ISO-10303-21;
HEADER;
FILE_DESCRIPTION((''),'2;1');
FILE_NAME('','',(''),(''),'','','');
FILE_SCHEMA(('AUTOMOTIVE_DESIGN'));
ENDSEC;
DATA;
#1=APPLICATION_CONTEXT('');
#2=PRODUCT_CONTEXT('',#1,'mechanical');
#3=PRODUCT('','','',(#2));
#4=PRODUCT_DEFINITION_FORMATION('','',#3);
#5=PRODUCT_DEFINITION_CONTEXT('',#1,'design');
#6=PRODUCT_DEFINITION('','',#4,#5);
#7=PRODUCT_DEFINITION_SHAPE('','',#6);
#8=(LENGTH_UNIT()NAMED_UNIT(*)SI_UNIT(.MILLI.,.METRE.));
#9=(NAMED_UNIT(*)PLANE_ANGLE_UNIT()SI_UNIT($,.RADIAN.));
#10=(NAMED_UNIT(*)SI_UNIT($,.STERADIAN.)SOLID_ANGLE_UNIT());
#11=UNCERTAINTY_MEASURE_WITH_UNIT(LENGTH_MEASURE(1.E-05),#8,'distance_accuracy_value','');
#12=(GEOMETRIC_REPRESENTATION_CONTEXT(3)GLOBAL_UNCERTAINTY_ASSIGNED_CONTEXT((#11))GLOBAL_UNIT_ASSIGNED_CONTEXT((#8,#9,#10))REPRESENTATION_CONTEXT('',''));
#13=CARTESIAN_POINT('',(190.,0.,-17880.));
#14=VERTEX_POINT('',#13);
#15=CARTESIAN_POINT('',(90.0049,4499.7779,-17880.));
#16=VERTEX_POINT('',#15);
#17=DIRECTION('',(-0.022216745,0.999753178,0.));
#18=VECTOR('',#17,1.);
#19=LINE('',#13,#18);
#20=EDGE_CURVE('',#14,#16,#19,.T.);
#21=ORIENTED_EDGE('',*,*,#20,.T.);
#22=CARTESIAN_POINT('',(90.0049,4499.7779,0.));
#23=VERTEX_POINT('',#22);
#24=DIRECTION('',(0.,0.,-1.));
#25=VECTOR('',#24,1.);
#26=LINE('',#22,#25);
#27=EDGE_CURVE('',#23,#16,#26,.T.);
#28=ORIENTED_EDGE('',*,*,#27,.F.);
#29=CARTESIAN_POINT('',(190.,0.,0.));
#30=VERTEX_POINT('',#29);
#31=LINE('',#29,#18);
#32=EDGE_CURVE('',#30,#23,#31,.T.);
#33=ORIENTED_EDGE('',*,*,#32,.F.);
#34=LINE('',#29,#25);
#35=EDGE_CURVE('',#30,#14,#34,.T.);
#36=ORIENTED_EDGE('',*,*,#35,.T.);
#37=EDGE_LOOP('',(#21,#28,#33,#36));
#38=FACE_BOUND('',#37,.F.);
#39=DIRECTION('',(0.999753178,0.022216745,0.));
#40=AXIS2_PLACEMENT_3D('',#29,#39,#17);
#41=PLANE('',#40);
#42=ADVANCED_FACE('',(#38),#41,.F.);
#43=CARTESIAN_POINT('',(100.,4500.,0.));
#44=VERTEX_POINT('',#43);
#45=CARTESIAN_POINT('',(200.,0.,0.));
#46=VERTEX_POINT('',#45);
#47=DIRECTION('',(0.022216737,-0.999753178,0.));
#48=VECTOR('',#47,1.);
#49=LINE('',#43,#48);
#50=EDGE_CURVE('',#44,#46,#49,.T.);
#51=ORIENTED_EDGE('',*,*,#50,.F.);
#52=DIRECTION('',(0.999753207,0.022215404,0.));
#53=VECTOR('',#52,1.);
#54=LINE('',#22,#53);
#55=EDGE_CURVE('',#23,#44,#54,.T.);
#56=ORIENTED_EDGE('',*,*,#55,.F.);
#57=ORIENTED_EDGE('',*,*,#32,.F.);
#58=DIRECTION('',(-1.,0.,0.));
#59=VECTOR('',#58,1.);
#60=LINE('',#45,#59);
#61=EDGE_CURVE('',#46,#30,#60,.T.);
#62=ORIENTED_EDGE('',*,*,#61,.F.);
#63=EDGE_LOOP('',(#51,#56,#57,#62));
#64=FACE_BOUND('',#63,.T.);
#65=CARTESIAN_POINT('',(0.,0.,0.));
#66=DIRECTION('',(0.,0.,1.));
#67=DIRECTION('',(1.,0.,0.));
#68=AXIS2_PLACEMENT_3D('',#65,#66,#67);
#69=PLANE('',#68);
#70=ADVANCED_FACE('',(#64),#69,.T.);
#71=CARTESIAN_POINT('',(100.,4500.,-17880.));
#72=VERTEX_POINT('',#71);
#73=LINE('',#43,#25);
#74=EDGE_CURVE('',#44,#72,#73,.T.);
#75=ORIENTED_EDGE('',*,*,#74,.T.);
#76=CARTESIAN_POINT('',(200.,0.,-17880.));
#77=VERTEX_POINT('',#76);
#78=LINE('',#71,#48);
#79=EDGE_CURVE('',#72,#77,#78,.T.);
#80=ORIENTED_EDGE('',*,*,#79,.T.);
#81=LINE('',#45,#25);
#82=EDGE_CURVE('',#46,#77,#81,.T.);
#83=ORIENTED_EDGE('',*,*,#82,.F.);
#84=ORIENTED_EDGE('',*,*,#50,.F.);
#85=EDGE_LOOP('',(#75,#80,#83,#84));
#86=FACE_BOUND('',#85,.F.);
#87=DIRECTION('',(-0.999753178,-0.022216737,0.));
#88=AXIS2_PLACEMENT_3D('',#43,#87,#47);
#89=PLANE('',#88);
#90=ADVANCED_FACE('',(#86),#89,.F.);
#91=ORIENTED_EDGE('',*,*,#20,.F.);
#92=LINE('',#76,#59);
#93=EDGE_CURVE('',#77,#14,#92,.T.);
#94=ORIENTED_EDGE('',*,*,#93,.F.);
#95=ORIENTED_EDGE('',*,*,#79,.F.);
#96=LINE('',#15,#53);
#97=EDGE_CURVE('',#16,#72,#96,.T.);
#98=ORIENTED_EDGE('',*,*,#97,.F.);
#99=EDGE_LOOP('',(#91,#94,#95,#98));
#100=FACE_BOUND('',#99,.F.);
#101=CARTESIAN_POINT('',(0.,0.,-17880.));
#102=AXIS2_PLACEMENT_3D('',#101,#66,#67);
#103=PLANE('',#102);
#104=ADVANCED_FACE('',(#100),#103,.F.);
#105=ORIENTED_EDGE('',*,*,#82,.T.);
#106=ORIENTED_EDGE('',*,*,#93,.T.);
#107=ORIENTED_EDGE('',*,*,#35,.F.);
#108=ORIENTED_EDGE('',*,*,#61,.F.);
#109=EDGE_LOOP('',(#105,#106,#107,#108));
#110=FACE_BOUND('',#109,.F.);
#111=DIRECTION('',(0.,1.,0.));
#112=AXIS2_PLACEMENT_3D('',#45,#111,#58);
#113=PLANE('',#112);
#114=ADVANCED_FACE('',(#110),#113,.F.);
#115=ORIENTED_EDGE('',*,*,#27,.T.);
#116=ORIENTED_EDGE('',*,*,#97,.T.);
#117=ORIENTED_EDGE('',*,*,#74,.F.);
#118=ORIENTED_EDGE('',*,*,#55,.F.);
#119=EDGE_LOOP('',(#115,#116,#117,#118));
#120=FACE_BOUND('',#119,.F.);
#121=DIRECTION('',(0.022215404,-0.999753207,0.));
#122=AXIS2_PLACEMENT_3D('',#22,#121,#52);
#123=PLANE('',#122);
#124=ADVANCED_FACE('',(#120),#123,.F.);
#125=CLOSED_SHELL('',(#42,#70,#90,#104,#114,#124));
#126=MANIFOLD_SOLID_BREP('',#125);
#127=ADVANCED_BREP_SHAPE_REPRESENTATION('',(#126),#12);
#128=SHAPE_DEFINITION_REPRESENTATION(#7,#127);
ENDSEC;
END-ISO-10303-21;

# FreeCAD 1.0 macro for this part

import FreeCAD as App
import Part
import Sketcher

V = App.Vector
Q = App.Units.Quantity

doc = App.newDocument("Part")
params = doc.addObject("Spreadsheet::Sheet", "Params")
for row, (alias, value) in enumerate([
    ("pad1_length", "703.9370079 in"),
], start=1):
    params.set(f"A{row}", alias)
    params.set(f"B{row}", "=" + value)
    params.setAlias(f"B{row}", alias)

body = doc.addObject("PartDesign::Body", "Body")

sketch1 = body.newObject("Sketcher::SketchObject", "Sketch")
sketch1.AttachmentSupport = (doc.getObject("XY_Plane"), [""])
sketch1.MapMode = "FlatFace"
sketch1.addGeometry([
    Part.LineSegment(V(190, 0, 0), V(200, 0, 0)),
    Part.LineSegment(V(200, 0, 0), V(100, 4500, 0)),
    Part.LineSegment(V(100, 4500, 0), V(90, 4500, 0)),
    Part.LineSegment(V(90, 4500, 0), V(190, 0, 0)),
], False)
sketch1.addConstraint([
    Sketcher.Constraint("Coincident", 0, 2, 1, 1),
    Sketcher.Constraint("Coincident", 1, 2, 2, 1),
    Sketcher.Constraint("Coincident", 2, 2, 3, 1),
    Sketcher.Constraint("Coincident", 3, 2, 0, 1),
    Sketcher.Constraint("Horizontal", 0),
    Sketcher.Constraint("PointOnObject", 0, 2, -1),
    Sketcher.Constraint("Perpendicular", 1, 2),
    Sketcher.Constraint("Perpendicular", 2, 3),
    Sketcher.Constraint("DistanceX", 0, 1, 0, 2, Q("0.3937 in")),
    Sketcher.Constraint("DistanceX", -1, 1, 1, 2, Q("3.937 in")),
    Sketcher.Constraint("DistanceX", 1, 2, 0, 2, Q("3.937 in")),
    Sketcher.Constraint("DistanceY", -1, 1, 1, 2, 4500.0),
])
pad1 = body.newObject("PartDesign::Pad", "Pad")
pad1.Profile = sketch1
pad1.setExpression("Length", "Params.pad1_length")
pad1.Reversed = True

doc.recompute()
